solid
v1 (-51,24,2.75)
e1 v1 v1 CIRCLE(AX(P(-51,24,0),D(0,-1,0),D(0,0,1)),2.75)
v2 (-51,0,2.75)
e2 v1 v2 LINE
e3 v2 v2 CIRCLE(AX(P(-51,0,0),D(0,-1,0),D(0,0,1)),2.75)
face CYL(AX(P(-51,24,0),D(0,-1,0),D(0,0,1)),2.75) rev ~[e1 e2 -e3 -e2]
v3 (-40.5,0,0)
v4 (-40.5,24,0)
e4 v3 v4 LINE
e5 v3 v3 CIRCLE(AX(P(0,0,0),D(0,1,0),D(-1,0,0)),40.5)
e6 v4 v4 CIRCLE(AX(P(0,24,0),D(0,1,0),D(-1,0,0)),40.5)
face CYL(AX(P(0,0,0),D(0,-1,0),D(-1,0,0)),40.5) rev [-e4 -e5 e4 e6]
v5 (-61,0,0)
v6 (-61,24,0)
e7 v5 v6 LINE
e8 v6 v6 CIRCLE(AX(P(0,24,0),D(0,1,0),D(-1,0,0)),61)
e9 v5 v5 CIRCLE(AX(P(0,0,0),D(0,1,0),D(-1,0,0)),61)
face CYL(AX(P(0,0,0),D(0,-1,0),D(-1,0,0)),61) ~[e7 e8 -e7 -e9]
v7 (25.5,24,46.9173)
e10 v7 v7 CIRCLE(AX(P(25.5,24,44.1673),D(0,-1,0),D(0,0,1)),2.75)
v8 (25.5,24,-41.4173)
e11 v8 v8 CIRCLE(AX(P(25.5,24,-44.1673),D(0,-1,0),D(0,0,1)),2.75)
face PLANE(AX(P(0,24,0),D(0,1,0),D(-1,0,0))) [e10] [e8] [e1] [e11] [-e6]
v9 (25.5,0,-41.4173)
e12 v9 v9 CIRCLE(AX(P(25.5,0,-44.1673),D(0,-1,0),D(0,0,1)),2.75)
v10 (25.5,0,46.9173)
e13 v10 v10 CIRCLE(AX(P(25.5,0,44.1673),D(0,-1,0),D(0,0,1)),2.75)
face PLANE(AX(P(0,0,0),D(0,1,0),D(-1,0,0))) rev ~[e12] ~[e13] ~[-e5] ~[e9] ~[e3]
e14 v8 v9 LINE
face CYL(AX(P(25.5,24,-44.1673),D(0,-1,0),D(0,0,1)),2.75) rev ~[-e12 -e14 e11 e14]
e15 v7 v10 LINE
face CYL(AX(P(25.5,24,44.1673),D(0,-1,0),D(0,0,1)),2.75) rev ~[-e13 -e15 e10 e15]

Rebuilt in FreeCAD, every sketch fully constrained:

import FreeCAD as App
import Part
import Sketcher

V = App.Vector

doc = App.newDocument("Part")
body = doc.addObject("PartDesign::Body", "Body")

# Sketch on XZ plane
sketch1 = doc.addObject("Sketcher::SketchObject", "Sketch")
body.addObject(sketch1)
sketch1.AttachmentSupport = (doc.XZ_Plane, [""])
sketch1.MapMode = "FlatFace"
sketch1.addGeometry([
    Part.Circle(V(0, 0, 0), V(0, 0, 1), 61),
    Part.Circle(V(0, 0, 0), V(0, 0, 1), 40.5),
], False)
sketch1.addConstraint([
    Sketcher.Constraint("Coincident", 0, 3, -1, 1),
    Sketcher.Constraint("Coincident", 1, 3, -1, 1),
    Sketcher.Constraint("Diameter", 0, 122.0),
    Sketcher.Constraint("Diameter", 1, 81.0),
])
pad1 = doc.addObject("PartDesign::Pad", "Pad")
body.addObject(pad1)
pad1.Profile = sketch1
pad1.Length = 24
pad1.Reversed = True

# Sketch on XZ plane
sketch2 = doc.addObject("Sketcher::SketchObject", "Sketch001")
body.addObject(sketch2)
sketch2.AttachmentSupport = (doc.XZ_Plane, [""])
sketch2.MapMode = "FlatFace"
sketch2.AttachmentOffset = App.Placement(V(0, 0, -24), App.Rotation())
sketch2.addGeometry([
    Part.Circle(V(-51, 0, 0), V(0, 0, 1), 2.75),
    Part.Circle(V(25.5, 44.1673, 0), V(0, 0, 1), 2.75),
    Part.Circle(V(25.5, -44.1673, 0), V(0, 0, 1), 2.75),
], False)
sketch2.addConstraint([
    Sketcher.Constraint("Equal", 0, 1),
    Sketcher.Constraint("Equal", 1, 2),
    Sketcher.Constraint("Symmetric", 1, 3, 2, 3, -1),
    Sketcher.Constraint("PointOnObject", 0, 3, -1),
    Sketcher.Constraint("Diameter", 0, 5.5),
    Sketcher.Constraint("DistanceX", 0, 3, -1, 1, 51.0),
    Sketcher.Constraint("DistanceX", -1, 1, 1, 3, 25.5),
    Sketcher.Constraint("DistanceY", -1, 1, 1, 3, 44.1673),
])
doc.recompute()
hole = doc.addObject("PartDesign::Hole", "Hole")
body.addObject(hole)
hole.Profile = sketch2
hole.ThreadType = "None"
hole.Diameter = 5.5
hole.DepthType = "ThroughAll"
hole.Reversed = True

doc.recompute()
